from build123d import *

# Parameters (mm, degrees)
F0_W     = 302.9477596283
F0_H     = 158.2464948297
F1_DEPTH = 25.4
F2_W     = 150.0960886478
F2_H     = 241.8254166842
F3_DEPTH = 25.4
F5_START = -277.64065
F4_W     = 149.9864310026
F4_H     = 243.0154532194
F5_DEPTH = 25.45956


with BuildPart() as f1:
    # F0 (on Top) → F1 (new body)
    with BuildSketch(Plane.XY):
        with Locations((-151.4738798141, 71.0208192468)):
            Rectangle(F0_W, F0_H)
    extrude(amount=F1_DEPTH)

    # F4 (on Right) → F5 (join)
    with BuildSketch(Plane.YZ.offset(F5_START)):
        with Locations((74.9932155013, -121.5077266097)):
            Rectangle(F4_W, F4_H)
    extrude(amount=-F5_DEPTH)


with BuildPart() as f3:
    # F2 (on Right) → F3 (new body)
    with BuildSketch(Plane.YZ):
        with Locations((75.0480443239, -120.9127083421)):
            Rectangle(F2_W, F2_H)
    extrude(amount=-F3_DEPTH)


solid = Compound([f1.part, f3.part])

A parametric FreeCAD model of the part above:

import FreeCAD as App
import Part
import Sketcher

V = App.Vector


def add_polygon(sketch, points):
    """Adds a closed chain of lines whose ends are joined by coincident constraints."""
    first, n = sketch.GeometryCount, len(points)
    for a, b in zip(points, points[1:] + points[:1]):
        sketch.addGeometry(Part.LineSegment(App.Vector(*a, 0), App.Vector(*b, 0)), False)
    for i in range(n):
        sketch.addConstraint(Sketcher.Constraint("Coincident", first + i, 2, first + (i + 1) % n, 1))

doc = App.newDocument("Part")
params = doc.addObject("Spreadsheet::Sheet", "Params")
for row, (alias, value) in enumerate([
    ("pad1_length", "1 in"),
    ("pad2_length", "25.45956 mm"),
    ("pad3_length", "1 in"),
], start=1):
    params.set(f"A{row}", alias)
    params.set(f"B{row}", "=" + value)
    params.setAlias(f"B{row}", alias)

body = doc.addObject("PartDesign::Body", "Body")

# Sketch on XY plane
sketch1 = body.newObject("Sketcher::SketchObject", "Sketch")
sketch1.AttachmentSupport = (doc.getObject("XY_Plane"), [""])
sketch1.MapMode = "FlatFace"
add_polygon(sketch1, [(-303, 150), (-303, -8), (0, -8), (0, 150)])  # lines 0-3
sketch1.addConstraint([
    Sketcher.Constraint("Vertical", 0),
    Sketcher.Constraint("Horizontal", 1),
    Sketcher.Constraint("Vertical", 2),
    Sketcher.Constraint("Horizontal", 3),
    Sketcher.Constraint("PointOnObject", 1, 2, -2),
    Sketcher.Constraint("DistanceX", 1, 1, 1, 2, 302.94776),
    Sketcher.Constraint("DistanceY", 0, 2, 0, 1, 158.246495),
    Sketcher.Constraint("DistanceY", 0, 2, -1, 1, 8.102428),
])
pad1 = body.newObject("PartDesign::Pad", "Pad")
pad1.Profile = sketch1
pad1.setExpression("Length", "Params.pad1_length")

# Sketch on YZ plane
sketch2 = body.newObject("Sketcher::SketchObject", "Sketch001")
sketch2.AttachmentSupport = (doc.getObject("YZ_Plane"), [""])
sketch2.MapMode = "FlatFace"
sketch2.AttachmentOffset = App.Placement(V(0, 0, -277.64065), App.Rotation())
add_polygon(sketch2, [(0, 0), (0, -243), (150, -243), (150, 0)])  # lines 0-3
sketch2.addConstraint([
    Sketcher.Constraint("Vertical", 0),
    Sketcher.Constraint("Horizontal", 1),
    Sketcher.Constraint("Vertical", 2),
    Sketcher.Constraint("Horizontal", 3),
    Sketcher.Constraint("Coincident", 3, 2, -1, 1),
    Sketcher.Constraint("DistanceX", 1, 1, 1, 2, 149.986431),
    Sketcher.Constraint("DistanceY", 0, 2, 0, 1, 243.015453),
])
pad2 = body.newObject("PartDesign::Pad", "Pad001")
pad2.Profile = sketch2
pad2.setExpression("Length", "Params.pad2_length")
pad2.Reversed = True
body2 = doc.addObject("PartDesign::Body", "Body001")

# Sketch on YZ plane
sketch3 = body2.newObject("Sketcher::SketchObject", "Sketch002")
sketch3.AttachmentSupport = (doc.getObject("YZ_Plane001"), [""])
sketch3.MapMode = "FlatFace"
add_polygon(sketch3, [(0, 0), (0, -242), (150, -242), (150, 0)])  # lines 0-3
sketch3.addConstraint([
    Sketcher.Constraint("Vertical", 0),
    Sketcher.Constraint("Horizontal", 1),
    Sketcher.Constraint("Vertical", 2),
    Sketcher.Constraint("Horizontal", 3),
    Sketcher.Constraint("Coincident", 3, 2, -1, 1),
    Sketcher.Constraint("DistanceX", 1, 1, 1, 2, 150.096089),
    Sketcher.Constraint("DistanceY", 0, 2, 0, 1, 241.825417),
])
pad3 = body2.newObject("PartDesign::Pad", "Pad002")
pad3.Profile = sketch3
pad3.setExpression("Length", "Params.pad3_length")
pad3.Reversed = True

doc.recompute()
